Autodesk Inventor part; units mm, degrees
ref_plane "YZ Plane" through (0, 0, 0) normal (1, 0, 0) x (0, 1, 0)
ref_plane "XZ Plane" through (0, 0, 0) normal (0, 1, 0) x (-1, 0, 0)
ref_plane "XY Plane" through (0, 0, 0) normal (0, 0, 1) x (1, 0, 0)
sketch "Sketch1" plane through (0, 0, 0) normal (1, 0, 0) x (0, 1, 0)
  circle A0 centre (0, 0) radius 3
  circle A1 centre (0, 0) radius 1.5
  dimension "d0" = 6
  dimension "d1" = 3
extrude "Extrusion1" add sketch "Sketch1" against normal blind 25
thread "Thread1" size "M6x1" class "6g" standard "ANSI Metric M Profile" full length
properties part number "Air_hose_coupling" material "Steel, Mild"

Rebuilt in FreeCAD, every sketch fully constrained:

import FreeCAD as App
import Part
import Sketcher
Q = App.Units.Quantity

doc = App.newDocument("Part")
params = doc.addObject("Spreadsheet::Sheet", "Params")
for row, (alias, value) in enumerate([
    ("sketch1_diameter", "6 mm"),
    ("sketch1_diameter2", "3 mm"),
    ("pad1_length", "25 mm"),
], start=1):
    params.set(f"A{row}", alias)
    params.set(f"B{row}", "=" + value)
    params.setAlias(f"B{row}", alias)

body = doc.addObject("PartDesign::Body", "Body")

sketch1 = body.newObject("Sketcher::SketchObject", "Sketch")
sketch1.AttachmentSupport = (doc.getObject("YZ_Plane"), [""])
sketch1.MapMode = "FlatFace"
sketch1.addGeometry([
    Part.Circle(App.Vector(0, 0, 0), App.Vector(0, 0, 1), 3),
    Part.Circle(App.Vector(0, 0, 0), App.Vector(0, 0, 1), 1.5),
], False)
sketch1.addConstraint([
    Sketcher.Constraint("Coincident", 0, 3, -1, 1),
    Sketcher.Constraint("Coincident", 1, 3, -1, 1),
    Sketcher.Constraint("Diameter", 0, Q("6 mm")),
    Sketcher.Constraint("Diameter", 1, Q("3 mm")),
])
sketch1.setExpression("Constraints[2]", "Params.sketch1_diameter")
sketch1.setExpression("Constraints[3]", "Params.sketch1_diameter2")
pad1 = body.newObject("PartDesign::Pad", "Pad")
pad1.Profile = sketch1
pad1.setExpression("Length", "Params.pad1_length")
pad1.Reversed = True

doc.recompute()
